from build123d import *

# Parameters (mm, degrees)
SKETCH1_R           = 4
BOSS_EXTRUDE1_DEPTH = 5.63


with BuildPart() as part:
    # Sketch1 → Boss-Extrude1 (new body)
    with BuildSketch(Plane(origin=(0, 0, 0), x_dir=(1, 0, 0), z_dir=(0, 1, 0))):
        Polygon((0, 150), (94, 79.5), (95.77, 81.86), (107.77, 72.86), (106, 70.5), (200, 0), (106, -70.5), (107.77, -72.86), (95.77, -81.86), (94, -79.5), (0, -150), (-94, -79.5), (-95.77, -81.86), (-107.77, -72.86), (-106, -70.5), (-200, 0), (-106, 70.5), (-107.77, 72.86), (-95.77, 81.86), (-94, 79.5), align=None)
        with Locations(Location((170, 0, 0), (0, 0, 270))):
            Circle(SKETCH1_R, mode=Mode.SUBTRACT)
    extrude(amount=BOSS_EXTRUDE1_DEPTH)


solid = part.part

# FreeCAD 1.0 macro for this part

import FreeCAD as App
import Part
import Sketcher
from FreeCAD import Vector

doc = App.newDocument("Part")
body = doc.addObject("PartDesign::Body", "Body")

sketch1 = body.newObject("Sketcher::SketchObject", "Sketch")
sketch1.AttachmentSupport = (doc.getObject("XZ_Plane"), [""])
sketch1.MapMode = "FlatFace"
sketch1.addGeometry(Part.LineSegment(Vector(94, -79.5, 0), Vector(0, -150, 0)), False)
sketch1.addGeometry(Part.LineSegment(Vector(0, -150, 0), Vector(-94, -79.5, 0)), False)
sketch1.addGeometry(Part.LineSegment(Vector(-94, -79.5, 0), Vector(-95.8, -81.9, 0)), False)
sketch1.addGeometry(Part.LineSegment(Vector(-95.8, -81.9, 0), Vector(-107.8, -72.9, 0)), False)
sketch1.addGeometry(Part.LineSegment(Vector(-107.8, -72.9, 0), Vector(-106, -70.5, 0)), False)
sketch1.addGeometry(Part.LineSegment(Vector(-106, -70.5, 0), Vector(-200, 0, 0)), False)
sketch1.addGeometry(Part.LineSegment(Vector(-200, 0, 0), Vector(-106, 70.5, 0)), False)
sketch1.addGeometry(Part.LineSegment(Vector(-106, 70.5, 0), Vector(-107.8, 72.9, 0)), False)
sketch1.addGeometry(Part.LineSegment(Vector(-107.8, 72.9, 0), Vector(-95.8, 81.9, 0)), False)
sketch1.addGeometry(Part.LineSegment(Vector(-95.8, 81.9, 0), Vector(-94, 79.5, 0)), False)
sketch1.addGeometry(Part.LineSegment(Vector(-94, 79.5, 0), Vector(0, 150, 0)), False)
sketch1.addGeometry(Part.LineSegment(Vector(0, 150, 0), Vector(94, 79.5, 0)), False)
sketch1.addGeometry(Part.LineSegment(Vector(94, 79.5, 0), Vector(95.8, 81.9, 0)), False)
sketch1.addGeometry(Part.LineSegment(Vector(95.8, 81.9, 0), Vector(107.8, 72.9, 0)), False)
sketch1.addGeometry(Part.LineSegment(Vector(107.8, 72.9, 0), Vector(106, 70.5, 0)), False)
sketch1.addGeometry(Part.LineSegment(Vector(106, 70.5, 0), Vector(200, 0, 0)), False)
sketch1.addGeometry(Part.LineSegment(Vector(200, 0, 0), Vector(106, -70.5, 0)), False)
sketch1.addGeometry(Part.LineSegment(Vector(106, -70.5, 0), Vector(107.8, -72.9, 0)), False)
sketch1.addGeometry(Part.LineSegment(Vector(107.8, -72.9, 0), Vector(95.8, -81.9, 0)), False)
sketch1.addGeometry(Part.LineSegment(Vector(95.8, -81.9, 0), Vector(94, -79.5, 0)), False)
sketch1.addGeometry(Part.Circle(Vector(170, 0, 0), Vector(0, 0, 1), 4), False)
sketch1.addConstraint(Sketcher.Constraint("Coincident", 0, 2, 1, 1))
sketch1.addConstraint(Sketcher.Constraint("Coincident", 1, 2, 2, 1))
sketch1.addConstraint(Sketcher.Constraint("Coincident", 2, 2, 3, 1))
sketch1.addConstraint(Sketcher.Constraint("Coincident", 3, 2, 4, 1))
sketch1.addConstraint(Sketcher.Constraint("Coincident", 4, 2, 5, 1))
sketch1.addConstraint(Sketcher.Constraint("Coincident", 5, 2, 6, 1))
sketch1.addConstraint(Sketcher.Constraint("Coincident", 6, 2, 7, 1))
sketch1.addConstraint(Sketcher.Constraint("Coincident", 7, 2, 8, 1))
sketch1.addConstraint(Sketcher.Constraint("Coincident", 8, 2, 9, 1))
sketch1.addConstraint(Sketcher.Constraint("Coincident", 9, 2, 10, 1))
sketch1.addConstraint(Sketcher.Constraint("Coincident", 10, 2, 11, 1))
sketch1.addConstraint(Sketcher.Constraint("Coincident", 11, 2, 12, 1))
sketch1.addConstraint(Sketcher.Constraint("Coincident", 12, 2, 13, 1))
sketch1.addConstraint(Sketcher.Constraint("Coincident", 13, 2, 14, 1))
sketch1.addConstraint(Sketcher.Constraint("Coincident", 14, 2, 15, 1))
sketch1.addConstraint(Sketcher.Constraint("Coincident", 15, 2, 16, 1))
sketch1.addConstraint(Sketcher.Constraint("Coincident", 16, 2, 17, 1))
sketch1.addConstraint(Sketcher.Constraint("Coincident", 17, 2, 18, 1))
sketch1.addConstraint(Sketcher.Constraint("Coincident", 18, 2, 19, 1))
sketch1.addConstraint(Sketcher.Constraint("Coincident", 19, 2, 0, 1))
sketch1.addConstraint(Sketcher.Constraint("Symmetric", 0, 2, 10, 2, -1, 1))
sketch1.addConstraint(Sketcher.Constraint("Symmetric", 1, 2, 11, 2, -1, 1))
sketch1.addConstraint(Sketcher.Constraint("Symmetric", 2, 2, 12, 2, -1, 1))
sketch1.addConstraint(Sketcher.Constraint("Symmetric", 3, 2, 13, 2, -1, 1))
sketch1.addConstraint(Sketcher.Constraint("Symmetric", 4, 2, 14, 2, -1, 1))
sketch1.addConstraint(Sketcher.Constraint("Symmetric", 5, 2, 15, 2, -1, 1))
sketch1.addConstraint(Sketcher.Constraint("Symmetric", 6, 2, 16, 2, -1, 1))
sketch1.addConstraint(Sketcher.Constraint("Symmetric", 7, 2, 17, 2, -1, 1))
sketch1.addConstraint(Sketcher.Constraint("Symmetric", 8, 2, 18, 2, -1, 1))
sketch1.addConstraint(Sketcher.Constraint("Symmetric", 9, 2, 19, 2, -1, 1))
sketch1.addConstraint(Sketcher.Constraint("Symmetric", 9, 2, 11, 2, -2))
sketch1.addConstraint(Sketcher.Constraint("Symmetric", 8, 2, 12, 2, -2))
sketch1.addConstraint(Sketcher.Constraint("Symmetric", 7, 2, 13, 2, -2))
sketch1.addConstraint(Sketcher.Constraint("Symmetric", 6, 2, 14, 2, -2))
sketch1.addConstraint(Sketcher.Constraint("PointOnObject", 20, 3, -1))
sketch1.addConstraint(Sketcher.Constraint("PointOnObject", 0, 2, -2))
sketch1.addConstraint(Sketcher.Constraint("PointOnObject", 5, 2, -1))
sketch1.addConstraint(Sketcher.Constraint("Perpendicular", 1, 2))
sketch1.addConstraint(Sketcher.Constraint("Perpendicular", 2, 3))
sketch1.addConstraint(Sketcher.Constraint("Perpendicular", 3, 4))
sketch1.addConstraint(Sketcher.Constraint("Perpendicular", 4, 5))
sketch1.addConstraint(Sketcher.Constraint("Equal", 2, 4))
sketch1.addConstraint(Sketcher.Constraint("Equal", 1, 5))
sketch1.addConstraint(Sketcher.Constraint("Diameter", 20, 8.0))
sketch1.addConstraint(Sketcher.Constraint("Distance", 3, 15.0))
sketch1.addConstraint(Sketcher.Constraint("DistanceX", -1, 1, 20, 3, 170.0))
sketch1.addConstraint(Sketcher.Constraint("DistanceY", 0, 2, -1, 1, 150.0))
sketch1.addConstraint(Sketcher.Constraint("DistanceX", 1, 2, -1, 1, 94.0))
sketch1.addConstraint(Sketcher.Constraint("Distance", 2, 2.95))
pad1 = body.newObject("PartDesign::Pad", "Pad")
pad1.Profile = sketch1
pad1.Length = 5.63
pad1.Reversed = True

doc.recompute()
